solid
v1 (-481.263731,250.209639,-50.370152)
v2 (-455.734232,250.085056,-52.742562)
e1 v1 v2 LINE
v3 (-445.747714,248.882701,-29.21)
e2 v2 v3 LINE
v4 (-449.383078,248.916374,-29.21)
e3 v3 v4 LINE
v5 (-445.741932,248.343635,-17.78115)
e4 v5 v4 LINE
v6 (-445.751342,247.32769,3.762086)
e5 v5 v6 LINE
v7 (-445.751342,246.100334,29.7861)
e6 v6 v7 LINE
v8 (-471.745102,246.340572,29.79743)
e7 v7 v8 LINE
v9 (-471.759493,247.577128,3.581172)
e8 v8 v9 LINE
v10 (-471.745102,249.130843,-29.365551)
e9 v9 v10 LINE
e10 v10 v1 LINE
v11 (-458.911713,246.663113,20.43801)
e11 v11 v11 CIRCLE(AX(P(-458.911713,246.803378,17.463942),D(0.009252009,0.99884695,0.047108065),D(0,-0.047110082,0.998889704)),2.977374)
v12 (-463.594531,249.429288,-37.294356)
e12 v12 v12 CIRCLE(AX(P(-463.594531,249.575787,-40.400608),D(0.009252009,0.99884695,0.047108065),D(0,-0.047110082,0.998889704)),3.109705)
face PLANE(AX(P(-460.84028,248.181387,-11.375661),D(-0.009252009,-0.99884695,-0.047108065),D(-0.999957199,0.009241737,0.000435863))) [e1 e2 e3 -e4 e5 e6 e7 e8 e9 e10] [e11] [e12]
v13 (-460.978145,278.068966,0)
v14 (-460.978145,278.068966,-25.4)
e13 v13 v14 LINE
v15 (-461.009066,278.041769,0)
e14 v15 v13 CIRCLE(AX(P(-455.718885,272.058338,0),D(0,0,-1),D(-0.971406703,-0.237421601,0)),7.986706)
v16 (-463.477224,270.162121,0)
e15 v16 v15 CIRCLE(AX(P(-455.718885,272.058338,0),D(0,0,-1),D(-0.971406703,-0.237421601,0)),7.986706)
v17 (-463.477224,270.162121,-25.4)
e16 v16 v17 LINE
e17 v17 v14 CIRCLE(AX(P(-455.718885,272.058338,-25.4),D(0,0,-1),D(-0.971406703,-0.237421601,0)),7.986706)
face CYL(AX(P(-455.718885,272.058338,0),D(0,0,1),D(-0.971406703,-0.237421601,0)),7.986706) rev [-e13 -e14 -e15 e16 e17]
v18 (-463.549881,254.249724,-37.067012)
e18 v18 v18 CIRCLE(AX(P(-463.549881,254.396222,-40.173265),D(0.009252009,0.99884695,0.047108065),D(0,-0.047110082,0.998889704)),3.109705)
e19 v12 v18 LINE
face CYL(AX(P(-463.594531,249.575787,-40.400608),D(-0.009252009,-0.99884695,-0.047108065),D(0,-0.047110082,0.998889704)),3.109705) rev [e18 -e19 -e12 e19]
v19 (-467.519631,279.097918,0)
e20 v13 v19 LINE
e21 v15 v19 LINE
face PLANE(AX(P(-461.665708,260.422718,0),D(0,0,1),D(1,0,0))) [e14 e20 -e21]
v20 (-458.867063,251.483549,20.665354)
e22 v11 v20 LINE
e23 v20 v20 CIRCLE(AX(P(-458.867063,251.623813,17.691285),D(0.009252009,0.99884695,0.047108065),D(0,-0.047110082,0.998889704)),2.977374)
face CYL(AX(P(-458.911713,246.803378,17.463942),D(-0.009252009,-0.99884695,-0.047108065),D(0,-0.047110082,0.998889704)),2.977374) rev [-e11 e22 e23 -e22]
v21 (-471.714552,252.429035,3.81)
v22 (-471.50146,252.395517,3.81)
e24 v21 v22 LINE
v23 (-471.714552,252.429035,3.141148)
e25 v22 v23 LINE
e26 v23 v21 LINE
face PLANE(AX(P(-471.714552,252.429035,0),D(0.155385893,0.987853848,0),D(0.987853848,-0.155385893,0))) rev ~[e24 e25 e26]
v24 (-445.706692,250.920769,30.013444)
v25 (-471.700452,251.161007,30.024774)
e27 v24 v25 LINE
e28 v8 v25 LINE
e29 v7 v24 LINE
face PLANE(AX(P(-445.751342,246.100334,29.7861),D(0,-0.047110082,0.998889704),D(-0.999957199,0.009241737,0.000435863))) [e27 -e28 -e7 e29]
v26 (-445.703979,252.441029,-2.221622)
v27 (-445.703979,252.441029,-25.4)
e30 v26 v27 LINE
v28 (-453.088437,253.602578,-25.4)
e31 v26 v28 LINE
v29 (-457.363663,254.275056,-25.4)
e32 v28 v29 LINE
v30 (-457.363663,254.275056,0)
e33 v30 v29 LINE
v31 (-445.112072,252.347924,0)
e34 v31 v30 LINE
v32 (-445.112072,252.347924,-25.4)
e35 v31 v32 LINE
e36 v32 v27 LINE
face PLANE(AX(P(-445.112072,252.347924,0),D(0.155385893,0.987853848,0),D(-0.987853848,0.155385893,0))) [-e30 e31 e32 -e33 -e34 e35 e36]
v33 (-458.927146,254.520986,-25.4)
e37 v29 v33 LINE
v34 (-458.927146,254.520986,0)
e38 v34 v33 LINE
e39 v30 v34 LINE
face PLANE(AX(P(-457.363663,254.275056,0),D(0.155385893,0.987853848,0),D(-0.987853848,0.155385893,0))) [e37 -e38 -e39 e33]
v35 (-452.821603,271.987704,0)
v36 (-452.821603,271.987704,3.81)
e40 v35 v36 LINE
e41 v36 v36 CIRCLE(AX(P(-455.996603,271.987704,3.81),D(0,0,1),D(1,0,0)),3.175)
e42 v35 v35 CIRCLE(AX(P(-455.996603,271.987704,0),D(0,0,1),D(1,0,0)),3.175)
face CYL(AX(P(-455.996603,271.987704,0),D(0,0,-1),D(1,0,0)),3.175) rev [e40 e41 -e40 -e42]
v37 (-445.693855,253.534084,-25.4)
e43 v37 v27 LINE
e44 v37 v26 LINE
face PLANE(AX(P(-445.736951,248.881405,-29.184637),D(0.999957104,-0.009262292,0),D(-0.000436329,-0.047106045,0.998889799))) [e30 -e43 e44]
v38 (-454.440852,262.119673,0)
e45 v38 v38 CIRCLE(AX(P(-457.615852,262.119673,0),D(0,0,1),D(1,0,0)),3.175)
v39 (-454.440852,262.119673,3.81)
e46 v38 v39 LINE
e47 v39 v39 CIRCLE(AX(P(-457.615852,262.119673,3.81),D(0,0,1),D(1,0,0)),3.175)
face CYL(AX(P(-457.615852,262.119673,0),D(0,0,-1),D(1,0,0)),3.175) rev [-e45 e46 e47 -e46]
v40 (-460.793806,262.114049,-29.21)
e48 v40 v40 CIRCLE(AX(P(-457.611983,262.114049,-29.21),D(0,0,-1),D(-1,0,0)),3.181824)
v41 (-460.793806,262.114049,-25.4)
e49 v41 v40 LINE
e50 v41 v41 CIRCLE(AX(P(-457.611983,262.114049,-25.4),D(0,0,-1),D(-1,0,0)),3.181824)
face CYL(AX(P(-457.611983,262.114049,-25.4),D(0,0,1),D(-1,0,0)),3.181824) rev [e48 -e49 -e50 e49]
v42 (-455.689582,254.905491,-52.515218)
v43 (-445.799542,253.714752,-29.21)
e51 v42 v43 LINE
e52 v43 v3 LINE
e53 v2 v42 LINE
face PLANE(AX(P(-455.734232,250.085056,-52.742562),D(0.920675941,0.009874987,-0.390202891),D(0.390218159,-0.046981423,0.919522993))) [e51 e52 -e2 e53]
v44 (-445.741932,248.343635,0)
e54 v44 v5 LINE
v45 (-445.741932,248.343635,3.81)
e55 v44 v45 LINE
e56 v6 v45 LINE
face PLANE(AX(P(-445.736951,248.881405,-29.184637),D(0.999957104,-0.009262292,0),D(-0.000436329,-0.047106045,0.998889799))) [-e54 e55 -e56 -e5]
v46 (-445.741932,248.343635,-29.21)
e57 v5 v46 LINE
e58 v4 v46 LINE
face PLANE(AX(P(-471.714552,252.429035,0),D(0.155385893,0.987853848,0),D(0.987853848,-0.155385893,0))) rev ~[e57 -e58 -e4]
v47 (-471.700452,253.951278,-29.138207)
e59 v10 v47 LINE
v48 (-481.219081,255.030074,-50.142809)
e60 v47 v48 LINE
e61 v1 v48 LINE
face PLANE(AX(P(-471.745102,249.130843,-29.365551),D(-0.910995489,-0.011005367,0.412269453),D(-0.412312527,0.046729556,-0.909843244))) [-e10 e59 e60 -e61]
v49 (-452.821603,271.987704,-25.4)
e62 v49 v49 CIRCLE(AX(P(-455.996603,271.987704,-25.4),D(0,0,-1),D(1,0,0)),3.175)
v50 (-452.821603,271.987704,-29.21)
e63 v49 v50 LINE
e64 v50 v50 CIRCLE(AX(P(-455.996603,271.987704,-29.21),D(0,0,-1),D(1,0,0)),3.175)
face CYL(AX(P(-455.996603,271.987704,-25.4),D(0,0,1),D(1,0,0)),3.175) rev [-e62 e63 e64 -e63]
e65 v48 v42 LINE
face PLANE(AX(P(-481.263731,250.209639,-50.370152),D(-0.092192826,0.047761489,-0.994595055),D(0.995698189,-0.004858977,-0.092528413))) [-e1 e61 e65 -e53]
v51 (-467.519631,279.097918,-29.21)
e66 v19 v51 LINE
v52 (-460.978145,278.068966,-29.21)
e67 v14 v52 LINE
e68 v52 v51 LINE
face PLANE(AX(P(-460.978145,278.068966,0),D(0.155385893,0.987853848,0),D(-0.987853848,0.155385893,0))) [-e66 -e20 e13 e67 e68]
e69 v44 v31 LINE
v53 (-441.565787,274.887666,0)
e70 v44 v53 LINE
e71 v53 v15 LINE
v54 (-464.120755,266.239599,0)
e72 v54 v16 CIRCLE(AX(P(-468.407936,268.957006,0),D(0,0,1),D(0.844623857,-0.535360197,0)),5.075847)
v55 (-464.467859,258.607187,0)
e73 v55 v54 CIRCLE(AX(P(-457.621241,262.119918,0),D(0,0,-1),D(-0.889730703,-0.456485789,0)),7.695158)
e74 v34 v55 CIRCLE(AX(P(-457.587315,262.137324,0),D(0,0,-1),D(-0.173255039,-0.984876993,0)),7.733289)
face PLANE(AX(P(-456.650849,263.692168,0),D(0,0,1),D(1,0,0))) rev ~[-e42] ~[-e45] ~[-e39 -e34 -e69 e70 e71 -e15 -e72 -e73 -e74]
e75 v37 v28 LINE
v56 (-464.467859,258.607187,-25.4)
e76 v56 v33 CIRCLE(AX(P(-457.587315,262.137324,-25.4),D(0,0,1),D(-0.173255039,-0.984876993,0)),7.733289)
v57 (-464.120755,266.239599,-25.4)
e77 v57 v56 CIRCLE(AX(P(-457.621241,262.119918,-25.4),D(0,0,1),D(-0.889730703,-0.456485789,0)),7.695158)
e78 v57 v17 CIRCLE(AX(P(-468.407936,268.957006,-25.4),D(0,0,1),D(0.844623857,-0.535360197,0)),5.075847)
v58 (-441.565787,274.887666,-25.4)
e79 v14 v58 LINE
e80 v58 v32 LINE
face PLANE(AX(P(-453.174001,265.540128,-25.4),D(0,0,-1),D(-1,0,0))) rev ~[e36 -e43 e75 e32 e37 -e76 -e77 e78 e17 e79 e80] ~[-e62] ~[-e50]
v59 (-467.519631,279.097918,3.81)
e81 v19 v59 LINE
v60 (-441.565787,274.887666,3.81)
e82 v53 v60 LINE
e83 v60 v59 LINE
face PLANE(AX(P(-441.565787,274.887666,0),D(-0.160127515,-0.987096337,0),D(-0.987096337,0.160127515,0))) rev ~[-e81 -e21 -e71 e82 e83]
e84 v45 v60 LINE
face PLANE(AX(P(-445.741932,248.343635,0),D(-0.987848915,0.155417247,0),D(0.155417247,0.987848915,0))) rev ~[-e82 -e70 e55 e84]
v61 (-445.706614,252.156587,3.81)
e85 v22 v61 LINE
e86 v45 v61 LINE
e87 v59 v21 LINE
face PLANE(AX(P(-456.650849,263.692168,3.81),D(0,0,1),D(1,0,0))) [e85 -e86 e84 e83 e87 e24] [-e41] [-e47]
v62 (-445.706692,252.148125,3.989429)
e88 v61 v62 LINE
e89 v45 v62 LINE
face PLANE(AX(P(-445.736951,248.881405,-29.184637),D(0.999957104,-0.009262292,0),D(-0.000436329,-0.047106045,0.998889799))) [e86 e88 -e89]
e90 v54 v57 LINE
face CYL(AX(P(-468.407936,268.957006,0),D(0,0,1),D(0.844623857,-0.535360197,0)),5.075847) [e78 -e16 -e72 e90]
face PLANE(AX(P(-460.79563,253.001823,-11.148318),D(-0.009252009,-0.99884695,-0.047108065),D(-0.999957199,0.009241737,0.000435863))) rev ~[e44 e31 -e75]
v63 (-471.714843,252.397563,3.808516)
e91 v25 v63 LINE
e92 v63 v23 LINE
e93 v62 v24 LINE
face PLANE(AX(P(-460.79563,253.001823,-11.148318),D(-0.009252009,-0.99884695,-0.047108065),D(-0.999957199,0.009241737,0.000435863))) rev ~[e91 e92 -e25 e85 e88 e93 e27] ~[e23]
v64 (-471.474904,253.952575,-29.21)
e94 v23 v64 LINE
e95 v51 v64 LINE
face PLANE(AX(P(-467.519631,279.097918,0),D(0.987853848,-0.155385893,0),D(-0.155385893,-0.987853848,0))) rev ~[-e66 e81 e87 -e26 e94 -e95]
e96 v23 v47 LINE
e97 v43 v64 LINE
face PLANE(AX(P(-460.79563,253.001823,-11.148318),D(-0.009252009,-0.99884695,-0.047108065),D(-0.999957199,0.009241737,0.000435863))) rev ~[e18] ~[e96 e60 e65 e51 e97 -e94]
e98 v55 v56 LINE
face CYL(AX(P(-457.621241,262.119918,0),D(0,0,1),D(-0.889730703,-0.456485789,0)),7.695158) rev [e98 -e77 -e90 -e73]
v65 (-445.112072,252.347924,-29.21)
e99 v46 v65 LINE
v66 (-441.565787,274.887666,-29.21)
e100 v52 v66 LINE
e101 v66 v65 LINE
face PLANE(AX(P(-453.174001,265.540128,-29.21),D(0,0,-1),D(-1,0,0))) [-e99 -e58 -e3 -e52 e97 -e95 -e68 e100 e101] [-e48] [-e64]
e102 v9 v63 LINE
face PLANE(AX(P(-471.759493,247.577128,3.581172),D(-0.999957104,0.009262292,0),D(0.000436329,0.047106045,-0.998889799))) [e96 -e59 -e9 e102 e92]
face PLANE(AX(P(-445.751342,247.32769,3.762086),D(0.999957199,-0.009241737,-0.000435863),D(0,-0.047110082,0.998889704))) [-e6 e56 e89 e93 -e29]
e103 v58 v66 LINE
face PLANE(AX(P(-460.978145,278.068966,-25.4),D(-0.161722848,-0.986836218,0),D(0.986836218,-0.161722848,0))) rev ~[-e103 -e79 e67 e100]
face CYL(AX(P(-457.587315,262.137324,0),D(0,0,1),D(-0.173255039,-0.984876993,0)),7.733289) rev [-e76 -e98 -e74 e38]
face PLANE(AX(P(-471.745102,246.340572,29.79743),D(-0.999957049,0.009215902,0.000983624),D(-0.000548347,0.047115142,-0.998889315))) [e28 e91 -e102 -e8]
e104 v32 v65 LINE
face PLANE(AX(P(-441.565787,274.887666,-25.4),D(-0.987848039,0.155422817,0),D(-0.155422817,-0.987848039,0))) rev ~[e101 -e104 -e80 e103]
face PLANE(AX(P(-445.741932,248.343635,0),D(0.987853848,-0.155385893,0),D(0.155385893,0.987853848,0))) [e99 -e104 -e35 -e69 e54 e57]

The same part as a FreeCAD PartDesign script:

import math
import FreeCAD as App
import Part
import Sketcher
Q = App.Units.Quantity


def add_polygon(sketch, points):
    """Adds a closed chain of lines whose ends are joined by coincident constraints."""
    first, n = sketch.GeometryCount, len(points)
    for a, b in zip(points, points[1:] + points[:1]):
        sketch.addGeometry(Part.LineSegment(App.Vector(*a, 0), App.Vector(*b, 0)), False)
    for i in range(n):
        sketch.addConstraint(Sketcher.Constraint("Coincident", first + i, 2, first + (i + 1) % n, 1))

doc = App.newDocument("Part")
params = doc.addObject("Spreadsheet::Sheet", "Params")
for row, (alias, value) in enumerate([
    ("pad1_length", "1.15 in"),
    ("sketch2_diameter", "0.25 in"),
    ("pad2_length", "0.15 in"),
    ("sketch3_diameter", "0.25 in"),
    ("pad3_length", "0.15 in"),
    ("pad4_length", "0.06 in"),
    ("pad4_length2", "0.13 in"),
], start=1):
    params.set(f"A{row}", alias)
    params.set(f"B{row}", "=" + value)
    params.setAlias(f"B{row}", alias)

body = doc.addObject("PartDesign::Body", "Body")

# Sketch on XY plane
sketch1 = body.newObject("Sketcher::SketchObject", "Sketch")
sketch1.AttachmentSupport = (doc.getObject("XY_Plane"), [""])
sketch1.MapMode = "FlatFace"
sketch1.addGeometry(Part.LineSegment(App.Vector(-445.7, 248.3, 0), App.Vector(-445.1, 252.3, 0)), False)
sketch1.addGeometry(Part.LineSegment(App.Vector(-445.1, 252.3, 0), App.Vector(-457.4, 254.3, 0)), False)
sketch1.addGeometry(Part.LineSegment(App.Vector(-457.4, 254.3, 0), App.Vector(-458.9, 254.5, 0)), False)
sketch1.addGeometry(Part.ArcOfCircle(Part.Circle(App.Vector(-457.6, 262.1, 0), App.Vector(0, 0, 1), 7.7), math.radians(-153), math.radians(-100)), False)
sketch1.addGeometry(Part.ArcOfCircle(Part.Circle(App.Vector(-457.6, 262.1, 0), App.Vector(0, 0, 1), 7.7), math.radians(148), math.radians(207)), False)
sketch1.addGeometry(Part.ArcOfCircle(Part.Circle(App.Vector(-468.4, 269, 0), App.Vector(0, 0, 1), 5.1), math.radians(-32), math.radians(14)), False)
sketch1.addGeometry(Part.ArcOfCircle(Part.Circle(App.Vector(-455.7, 272.1, 0), App.Vector(0, 0, 1), 8), math.radians(131), math.radians(194)), False)
sketch1.addGeometry(Part.LineSegment(App.Vector(-461, 278.1, 0), App.Vector(-467.5, 279.1, 0)), False)
sketch1.addGeometry(Part.LineSegment(App.Vector(-467.5, 279.1, 0), App.Vector(-471.7, 252.4, 0)), False)
sketch1.addGeometry(Part.LineSegment(App.Vector(-471.7, 252.4, 0), App.Vector(-445.7, 248.3, 0)), False)
sketch1.addConstraint(Sketcher.Constraint("Coincident", 0, 2, 1, 1))
sketch1.addConstraint(Sketcher.Constraint("Coincident", 1, 2, 2, 1))
sketch1.addConstraint(Sketcher.Constraint("Coincident", 2, 2, 3, 2))
sketch1.addConstraint(Sketcher.Constraint("Tangent", 3, 1, 4, 2))
sketch1.addConstraint(Sketcher.Constraint("Tangent", 4, 1, 5, 1))
sketch1.addConstraint(Sketcher.Constraint("Tangent", 5, 2, 6, 2))
sketch1.addConstraint(Sketcher.Constraint("Coincident", 6, 1, 7, 1))
sketch1.addConstraint(Sketcher.Constraint("Coincident", 7, 2, 8, 1))
sketch1.addConstraint(Sketcher.Constraint("Coincident", 8, 2, 9, 1))
sketch1.addConstraint(Sketcher.Constraint("Coincident", 9, 2, 0, 1))
sketch1.addConstraint(Sketcher.Constraint("Perpendicular", 0, 1))
sketch1.addConstraint(Sketcher.Constraint("Parallel", 1, 2))
sketch1.addConstraint(Sketcher.Constraint("Parallel", 2, 7))
sketch1.addConstraint(Sketcher.Constraint("Perpendicular", 7, 8))
sketch1.addConstraint(Sketcher.Constraint("Perpendicular", 8, 9))
sketch1.addConstraint(Sketcher.Constraint("Radius", 3, 7.733289))
sketch1.addConstraint(Sketcher.Constraint("Radius", 4, 7.695158))
sketch1.addConstraint(Sketcher.Constraint("Radius", 5, 5.075847))
sketch1.addConstraint(Sketcher.Constraint("Radius", 6, 7.986706))
sketch1.addConstraint(Sketcher.Constraint("DistanceY", -1, 1, 4, 1, 266.239599))
sketch1.addConstraint(Sketcher.Constraint("DistanceY", 0, 2, 3, 3, 9.7894))
sketch1.addConstraint(Sketcher.Constraint("DistanceY", 2, 2, 3, 1, 4.086202))
sketch1.addConstraint(Sketcher.Constraint("Distance", 1, 12.402231))
sketch1.addConstraint(Sketcher.Constraint("Distance", 8, 26.99679))
sketch1.addConstraint(Sketcher.Constraint("DistanceX", 4, 3, -1, 1, 457.621241))
sketch1.addConstraint(Sketcher.Constraint("DistanceX", 0, 2, -1, 1, 445.112072))
sketch1.addConstraint(Sketcher.Constraint("DistanceX", 3, 1, -1, 1, 464.467859))
sketch1.addConstraint(Sketcher.Constraint("DistanceY", -1, 1, 5, 2, 270.162121))
sketch1.addConstraint(Sketcher.Constraint("DistanceX", 7, 2, -1, 1, 467.519631))
sketch1.addConstraint(Sketcher.Constraint("DistanceY", -1, 1, 7, 2, 279.097918))
sketch1.addConstraint(Sketcher.Constraint("DistanceX", 5, 3, 3, 3, 10.820622))
pad1 = body.newObject("PartDesign::Pad", "Pad")
pad1.Profile = sketch1
pad1.setExpression("Length", "Params.pad1_length")
pad1.Reversed = True

# Sketch on XY plane
sketch2 = body.newObject("Sketcher::SketchObject", "Sketch001")
sketch2.AttachmentSupport = (doc.getObject("XY_Plane"), [""])
sketch2.MapMode = "FlatFace"
add_polygon(sketch2, [(-467.5, 279.1), (-471.7, 252.4), (-445.7, 248.3), (-441.6, 274.9)])  # lines 0-3
sketch2.addGeometry(Part.Circle(App.Vector(-457.6, 262.1, 0), App.Vector(0, 0, 1), 3.2), False)  # 4
sketch2.addGeometry(Part.Circle(App.Vector(-456, 272, 0), App.Vector(0, 0, 1), 3.2), False)  # 5
sketch2.addConstraint(Sketcher.Constraint("Equal", 4, 5))
sketch2.addConstraint(Sketcher.Constraint("Perpendicular", 0, 1))
sketch2.addConstraint(Sketcher.Constraint("Diameter", 4, Q("0.25 in")))
sketch2.addConstraint(Sketcher.Constraint("DistanceX", 0, 2, 4, 3, 14.0987))
sketch2.addConstraint(Sketcher.Constraint("DistanceY", 1, 2, 0, 2, 4.085401))
sketch2.addConstraint(Sketcher.Constraint("DistanceX", 3, 2, 1, 2, 21.777699))
sketch2.addConstraint(Sketcher.Constraint("Distance", 0, 26.99679))
sketch2.addConstraint(Sketcher.Constraint("Distance", 3, 26.293122))
sketch2.addConstraint(Sketcher.Constraint("DistanceX", 4, 3, -1, 1, 457.615852))
sketch2.addConstraint(Sketcher.Constraint("DistanceY", -1, 1, 3, 2, 279.097918))
sketch2.addConstraint(Sketcher.Constraint("DistanceX", 4, 3, 5, 3, 1.619248))
sketch2.addConstraint(Sketcher.Constraint("DistanceY", 4, 3, 5, 3, 9.868031))
sketch2.addConstraint(Sketcher.Constraint("DistanceY", 0, 2, 5, 3, 19.558668))
sketch2.addConstraint(Sketcher.Constraint("DistanceY", 1, 2, 2, 2, 26.544031))
sketch2.setExpression("Constraints[6]", "Params.sketch2_diameter")
pad2 = body.newObject("PartDesign::Pad", "Pad001")
pad2.Profile = sketch2
pad2.setExpression("Length", "Params.pad2_length")

# Sketch on XY plane
sketch3 = body.newObject("Sketcher::SketchObject", "Sketch002")
sketch3.AttachmentSupport = (doc.getObject("XY_Plane"), [""])
sketch3.MapMode = "FlatFace"
sketch3.AttachmentOffset = App.Placement(App.Vector(0, 0, -1 * 25.4), App.Rotation())
sketch3.addGeometry(Part.LineSegment(App.Vector(-461, 278.1, 0), App.Vector(-441.6, 274.9, 0)), False)
sketch3.addGeometry(Part.LineSegment(App.Vector(-441.6, 274.9, 0), App.Vector(-445.1, 252.3, 0)), False)
sketch3.addGeometry(Part.LineSegment(App.Vector(-445.1, 252.3, 0), App.Vector(-458.9, 254.5, 0)), False)
sketch3.addGeometry(Part.ArcOfCircle(Part.Circle(App.Vector(-457.6, 262.1, 0), App.Vector(0, 0, 1), 7.7), math.radians(148), math.radians(260)), False)
sketch3.addGeometry(Part.ArcOfCircle(Part.Circle(App.Vector(-468.4, 269, 0), App.Vector(0, 0, 1), 5.1), math.radians(-32), math.radians(14)), False)
sketch3.addGeometry(Part.ArcOfCircle(Part.Circle(App.Vector(-455.7, 272.1, 0), App.Vector(0, 0, 1), 8), math.radians(131), math.radians(194)), False)
sketch3.addGeometry(Part.Circle(App.Vector(-457.6, 262.1, 0), App.Vector(0, 0, 1), 3.2), False)
sketch3.addGeometry(Part.Circle(App.Vector(-456, 272, 0), App.Vector(0, 0, 1), 3.2), False)
sketch3.addConstraint(Sketcher.Constraint("Coincident", 0, 2, 1, 1))
sketch3.addConstraint(Sketcher.Constraint("Coincident", 1, 2, 2, 1))
sketch3.addConstraint(Sketcher.Constraint("Coincident", 2, 2, 3, 2))
sketch3.addConstraint(Sketcher.Constraint("Tangent", 3, 1, 4, 1))
sketch3.addConstraint(Sketcher.Constraint("Tangent", 4, 2, 5, 2))
sketch3.addConstraint(Sketcher.Constraint("Coincident", 5, 1, 0, 1))
sketch3.addConstraint(Sketcher.Constraint("Coincident", 6, 3, 3, 3))
sketch3.addConstraint(Sketcher.Constraint("Diameter", 7, Q("0.25 in")))
sketch3.addConstraint(Sketcher.Constraint("Radius", 3, 7.706119))
sketch3.addConstraint(Sketcher.Constraint("Diameter", 6, 6.363647))
sketch3.addConstraint(Sketcher.Constraint("Radius", 4, 5.075847))
sketch3.addConstraint(Sketcher.Constraint("Radius", 5, 7.986706))
sketch3.addConstraint(Sketcher.Constraint("DistanceY", -1, 1, 3, 1, 266.239599))
sketch3.addConstraint(Sketcher.Constraint("DistanceY", -1, 1, 3, 3, 262.114049))
sketch3.addConstraint(Sketcher.Constraint("DistanceX", 1, 2, -1, 1, 445.112072))
sketch3.addConstraint(Sketcher.Constraint("DistanceY", -1, 1, 4, 2, 270.162121))
sketch3.addConstraint(Sketcher.Constraint("DistanceX", 7, 3, 5, 3, 0.277718))
sketch3.addConstraint(Sketcher.Constraint("DistanceX", 4, 3, 0, 2, 26.842149))
sketch3.addConstraint(Sketcher.Constraint("DistanceY", 4, 3, 0, 2, 5.93066))
sketch3.addConstraint(Sketcher.Constraint("DistanceX", 6, 3, 1, 2, 12.499911))
sketch3.addConstraint(Sketcher.Constraint("DistanceY", 1, 2, 7, 3, 19.63978))
sketch3.addConstraint(Sketcher.Constraint("DistanceY", 1, 2, 0, 2, 22.539742))
sketch3.addConstraint(Sketcher.Constraint("DistanceY", 1, 2, 2, 2, 2.173062))
sketch3.addConstraint(Sketcher.Constraint("DistanceX", 5, 1, 5, 3, 5.259261))
sketch3.setExpression("Constraints[7]", "Params.sketch3_diameter")
pad3 = body.newObject("PartDesign::Pad", "Pad002")
pad3.Profile = sketch3
pad3.setExpression("Length", "Params.pad3_length")
pad3.Reversed = True

# Sketch on an angled plane
sketch4 = body.newObject("Sketcher::SketchObject", "Sketch003")
sketch4.Placement = App.Placement(App.Vector(2.279673, 246.113529, 11.607316), App.Rotation(App.Vector(0.999957199, -0.009241737, -0.000435863), App.Vector(0, 0.047110081, -0.998889703), App.Vector(0.009252009, 0.99884695, 0.047108065), "ZXY"))
add_polygon(sketch4, [(-448, -18.2), (-448, 7.9), (-448, 40.9), (-458, 64.5), (-483.5, 62.1), (-474, 41.1), (-474, 8.1), (-474, -18.2)])  # lines 0-7
sketch4.addGeometry(Part.Circle(App.Vector(-461.2, -5.8, 0), App.Vector(0, 0, 1), 3), False)  # 8
sketch4.addGeometry(Part.Circle(App.Vector(-465.9, 52.1, 0), App.Vector(0, 0, 1), 3.1), False)  # 9
sketch4.addConstraint(Sketcher.Constraint("Vertical", 0))
sketch4.addConstraint(Sketcher.Constraint("Horizontal", 7))
sketch4.addConstraint(Sketcher.Constraint("Parallel", 1, 5))
sketch4.addConstraint(Sketcher.Constraint("Vertical", 4, 2, 6, 2))
sketch4.addConstraint(Sketcher.Constraint("Equal", 1, 5))
sketch4.addConstraint(Sketcher.Constraint("Angle", 3, Q("-174.710002 deg")))
sketch4.addConstraint(Sketcher.Constraint("Diameter", 8, 5.954749))
sketch4.addConstraint(Sketcher.Constraint("Diameter", 9, 6.219411))
sketch4.addConstraint(Sketcher.Constraint("DistanceX", 7, 1, 7, 2, 25.994872))
sketch4.addConstraint(Sketcher.Constraint("DistanceY", 0, 1, 0, 2, 26.052941))
sketch4.addConstraint(Sketcher.Constraint("DistanceX", 3, 2, 1, 2, 35.5283))
sketch4.addConstraint(Sketcher.Constraint("DistanceY", 0, 2, 4, 2, 33.175802))
sketch4.addConstraint(Sketcher.Constraint("Distance", 1, 32.983341))
sketch4.addConstraint(Sketcher.Constraint("DistanceX", 0, 2, -1, 1, 448.019641))
sketch4.addConstraint(Sketcher.Constraint("DistanceY", -1, 1, 0, 2, 7.893719))
sketch4.addConstraint(Sketcher.Constraint("DistanceX", 1, 2, -1, 1, 448.005249))
sketch4.addConstraint(Sketcher.Constraint("DistanceY", -1, 1, 2, 2, 64.465529))
sketch4.addConstraint(Sketcher.Constraint("DistanceY", 8, 3, 9, 3, 57.930912))
sketch4.addConstraint(Sketcher.Constraint("DistanceY", 0, 2, 9, 3, 44.219568))
sketch4.addConstraint(Sketcher.Constraint("DistanceX", 2, 2, 1, 2, 9.997709))
sketch4.addConstraint(Sketcher.Constraint("DistanceX", 4, 2, 9, 3, 8.15092))
sketch4.addConstraint(Sketcher.Constraint("DistanceX", 5, 2, 8, 3, 12.84833))
pad4 = body.newObject("PartDesign::Pad", "Pad003")
pad4.Profile = sketch4
pad4.Type = "TwoLengths"
pad4.setExpression("Length", "Params.pad4_length")
pad4.setExpression("Length2", "Params.pad4_length2")

doc.recompute()
